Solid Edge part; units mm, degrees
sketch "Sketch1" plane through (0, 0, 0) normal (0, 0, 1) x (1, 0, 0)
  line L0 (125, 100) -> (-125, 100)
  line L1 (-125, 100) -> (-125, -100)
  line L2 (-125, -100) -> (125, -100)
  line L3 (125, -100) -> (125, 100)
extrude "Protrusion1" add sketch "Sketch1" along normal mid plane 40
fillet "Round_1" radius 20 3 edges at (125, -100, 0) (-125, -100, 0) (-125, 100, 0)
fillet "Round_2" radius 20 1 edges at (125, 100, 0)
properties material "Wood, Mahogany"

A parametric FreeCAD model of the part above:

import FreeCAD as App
import Part
import Sketcher
from FreeCAD import Vector
Q = App.Units.Quantity


def edges_at(feature, points):
    """Names of the edges that pass closest to the given points."""
    edges = feature.Shape.Edges
    near = lambda p: min(range(len(edges)), key=lambda i: edges[i].distToShape(Part.Vertex(*p))[0])
    return sorted({f"Edge{near(p) + 1}" for p in points})


def add_polygon(sketch, points):
    """Adds a closed chain of lines whose ends are joined by coincident constraints."""
    first, n = sketch.GeometryCount, len(points)
    for a, b in zip(points, points[1:] + points[:1]):
        sketch.addGeometry(Part.LineSegment(App.Vector(*a, 0), App.Vector(*b, 0)), False)
    for i in range(n):
        sketch.addConstraint(Sketcher.Constraint("Coincident", first + i, 2, first + (i + 1) % n, 1))

doc = App.newDocument("Part")
body = doc.addObject("PartDesign::Body", "Body")

sketch1 = body.newObject("Sketcher::SketchObject", "Sketch")
sketch1.AttachmentSupport = (doc.getObject("XY_Plane"), [""])
sketch1.MapMode = "FlatFace"
add_polygon(sketch1, [(125, -100), (125, 100), (-125, 100), (-125, -100)])
sketch1.addConstraint(Sketcher.Constraint("Vertical", 0))
sketch1.addConstraint(Sketcher.Constraint("Horizontal", 1))
sketch1.addConstraint(Sketcher.Constraint("Vertical", 2))
sketch1.addConstraint(Sketcher.Constraint("Horizontal", 3))
sketch1.addConstraint(Sketcher.Constraint("Symmetric", 0, 2, 2, 2, -1, 1))
sketch1.addConstraint(Sketcher.Constraint("DistanceX", 1, 2, 1, 1, Q("250 mm")))
sketch1.addConstraint(Sketcher.Constraint("DistanceY", 0, 1, 0, 2, Q("200 mm")))
pad1 = body.newObject("PartDesign::Pad", "Pad")
pad1.Profile = sketch1
pad1.Length = 40
pad1.Midplane = True
doc.recompute()

fillet = body.newObject("PartDesign::Fillet", "Fillet")
fillet.Base = (pad1, edges_at(pad1, [(125, -100, 0), (-125, -100, 0), (-125, 100, 0)]))
fillet.Radius = 20
doc.recompute()

fillet2 = body.newObject("PartDesign::Fillet", "Fillet001")
fillet2.Base = (fillet, edges_at(fillet, [(125, 100, 0)]))
fillet2.Radius = 20

doc.recompute()
